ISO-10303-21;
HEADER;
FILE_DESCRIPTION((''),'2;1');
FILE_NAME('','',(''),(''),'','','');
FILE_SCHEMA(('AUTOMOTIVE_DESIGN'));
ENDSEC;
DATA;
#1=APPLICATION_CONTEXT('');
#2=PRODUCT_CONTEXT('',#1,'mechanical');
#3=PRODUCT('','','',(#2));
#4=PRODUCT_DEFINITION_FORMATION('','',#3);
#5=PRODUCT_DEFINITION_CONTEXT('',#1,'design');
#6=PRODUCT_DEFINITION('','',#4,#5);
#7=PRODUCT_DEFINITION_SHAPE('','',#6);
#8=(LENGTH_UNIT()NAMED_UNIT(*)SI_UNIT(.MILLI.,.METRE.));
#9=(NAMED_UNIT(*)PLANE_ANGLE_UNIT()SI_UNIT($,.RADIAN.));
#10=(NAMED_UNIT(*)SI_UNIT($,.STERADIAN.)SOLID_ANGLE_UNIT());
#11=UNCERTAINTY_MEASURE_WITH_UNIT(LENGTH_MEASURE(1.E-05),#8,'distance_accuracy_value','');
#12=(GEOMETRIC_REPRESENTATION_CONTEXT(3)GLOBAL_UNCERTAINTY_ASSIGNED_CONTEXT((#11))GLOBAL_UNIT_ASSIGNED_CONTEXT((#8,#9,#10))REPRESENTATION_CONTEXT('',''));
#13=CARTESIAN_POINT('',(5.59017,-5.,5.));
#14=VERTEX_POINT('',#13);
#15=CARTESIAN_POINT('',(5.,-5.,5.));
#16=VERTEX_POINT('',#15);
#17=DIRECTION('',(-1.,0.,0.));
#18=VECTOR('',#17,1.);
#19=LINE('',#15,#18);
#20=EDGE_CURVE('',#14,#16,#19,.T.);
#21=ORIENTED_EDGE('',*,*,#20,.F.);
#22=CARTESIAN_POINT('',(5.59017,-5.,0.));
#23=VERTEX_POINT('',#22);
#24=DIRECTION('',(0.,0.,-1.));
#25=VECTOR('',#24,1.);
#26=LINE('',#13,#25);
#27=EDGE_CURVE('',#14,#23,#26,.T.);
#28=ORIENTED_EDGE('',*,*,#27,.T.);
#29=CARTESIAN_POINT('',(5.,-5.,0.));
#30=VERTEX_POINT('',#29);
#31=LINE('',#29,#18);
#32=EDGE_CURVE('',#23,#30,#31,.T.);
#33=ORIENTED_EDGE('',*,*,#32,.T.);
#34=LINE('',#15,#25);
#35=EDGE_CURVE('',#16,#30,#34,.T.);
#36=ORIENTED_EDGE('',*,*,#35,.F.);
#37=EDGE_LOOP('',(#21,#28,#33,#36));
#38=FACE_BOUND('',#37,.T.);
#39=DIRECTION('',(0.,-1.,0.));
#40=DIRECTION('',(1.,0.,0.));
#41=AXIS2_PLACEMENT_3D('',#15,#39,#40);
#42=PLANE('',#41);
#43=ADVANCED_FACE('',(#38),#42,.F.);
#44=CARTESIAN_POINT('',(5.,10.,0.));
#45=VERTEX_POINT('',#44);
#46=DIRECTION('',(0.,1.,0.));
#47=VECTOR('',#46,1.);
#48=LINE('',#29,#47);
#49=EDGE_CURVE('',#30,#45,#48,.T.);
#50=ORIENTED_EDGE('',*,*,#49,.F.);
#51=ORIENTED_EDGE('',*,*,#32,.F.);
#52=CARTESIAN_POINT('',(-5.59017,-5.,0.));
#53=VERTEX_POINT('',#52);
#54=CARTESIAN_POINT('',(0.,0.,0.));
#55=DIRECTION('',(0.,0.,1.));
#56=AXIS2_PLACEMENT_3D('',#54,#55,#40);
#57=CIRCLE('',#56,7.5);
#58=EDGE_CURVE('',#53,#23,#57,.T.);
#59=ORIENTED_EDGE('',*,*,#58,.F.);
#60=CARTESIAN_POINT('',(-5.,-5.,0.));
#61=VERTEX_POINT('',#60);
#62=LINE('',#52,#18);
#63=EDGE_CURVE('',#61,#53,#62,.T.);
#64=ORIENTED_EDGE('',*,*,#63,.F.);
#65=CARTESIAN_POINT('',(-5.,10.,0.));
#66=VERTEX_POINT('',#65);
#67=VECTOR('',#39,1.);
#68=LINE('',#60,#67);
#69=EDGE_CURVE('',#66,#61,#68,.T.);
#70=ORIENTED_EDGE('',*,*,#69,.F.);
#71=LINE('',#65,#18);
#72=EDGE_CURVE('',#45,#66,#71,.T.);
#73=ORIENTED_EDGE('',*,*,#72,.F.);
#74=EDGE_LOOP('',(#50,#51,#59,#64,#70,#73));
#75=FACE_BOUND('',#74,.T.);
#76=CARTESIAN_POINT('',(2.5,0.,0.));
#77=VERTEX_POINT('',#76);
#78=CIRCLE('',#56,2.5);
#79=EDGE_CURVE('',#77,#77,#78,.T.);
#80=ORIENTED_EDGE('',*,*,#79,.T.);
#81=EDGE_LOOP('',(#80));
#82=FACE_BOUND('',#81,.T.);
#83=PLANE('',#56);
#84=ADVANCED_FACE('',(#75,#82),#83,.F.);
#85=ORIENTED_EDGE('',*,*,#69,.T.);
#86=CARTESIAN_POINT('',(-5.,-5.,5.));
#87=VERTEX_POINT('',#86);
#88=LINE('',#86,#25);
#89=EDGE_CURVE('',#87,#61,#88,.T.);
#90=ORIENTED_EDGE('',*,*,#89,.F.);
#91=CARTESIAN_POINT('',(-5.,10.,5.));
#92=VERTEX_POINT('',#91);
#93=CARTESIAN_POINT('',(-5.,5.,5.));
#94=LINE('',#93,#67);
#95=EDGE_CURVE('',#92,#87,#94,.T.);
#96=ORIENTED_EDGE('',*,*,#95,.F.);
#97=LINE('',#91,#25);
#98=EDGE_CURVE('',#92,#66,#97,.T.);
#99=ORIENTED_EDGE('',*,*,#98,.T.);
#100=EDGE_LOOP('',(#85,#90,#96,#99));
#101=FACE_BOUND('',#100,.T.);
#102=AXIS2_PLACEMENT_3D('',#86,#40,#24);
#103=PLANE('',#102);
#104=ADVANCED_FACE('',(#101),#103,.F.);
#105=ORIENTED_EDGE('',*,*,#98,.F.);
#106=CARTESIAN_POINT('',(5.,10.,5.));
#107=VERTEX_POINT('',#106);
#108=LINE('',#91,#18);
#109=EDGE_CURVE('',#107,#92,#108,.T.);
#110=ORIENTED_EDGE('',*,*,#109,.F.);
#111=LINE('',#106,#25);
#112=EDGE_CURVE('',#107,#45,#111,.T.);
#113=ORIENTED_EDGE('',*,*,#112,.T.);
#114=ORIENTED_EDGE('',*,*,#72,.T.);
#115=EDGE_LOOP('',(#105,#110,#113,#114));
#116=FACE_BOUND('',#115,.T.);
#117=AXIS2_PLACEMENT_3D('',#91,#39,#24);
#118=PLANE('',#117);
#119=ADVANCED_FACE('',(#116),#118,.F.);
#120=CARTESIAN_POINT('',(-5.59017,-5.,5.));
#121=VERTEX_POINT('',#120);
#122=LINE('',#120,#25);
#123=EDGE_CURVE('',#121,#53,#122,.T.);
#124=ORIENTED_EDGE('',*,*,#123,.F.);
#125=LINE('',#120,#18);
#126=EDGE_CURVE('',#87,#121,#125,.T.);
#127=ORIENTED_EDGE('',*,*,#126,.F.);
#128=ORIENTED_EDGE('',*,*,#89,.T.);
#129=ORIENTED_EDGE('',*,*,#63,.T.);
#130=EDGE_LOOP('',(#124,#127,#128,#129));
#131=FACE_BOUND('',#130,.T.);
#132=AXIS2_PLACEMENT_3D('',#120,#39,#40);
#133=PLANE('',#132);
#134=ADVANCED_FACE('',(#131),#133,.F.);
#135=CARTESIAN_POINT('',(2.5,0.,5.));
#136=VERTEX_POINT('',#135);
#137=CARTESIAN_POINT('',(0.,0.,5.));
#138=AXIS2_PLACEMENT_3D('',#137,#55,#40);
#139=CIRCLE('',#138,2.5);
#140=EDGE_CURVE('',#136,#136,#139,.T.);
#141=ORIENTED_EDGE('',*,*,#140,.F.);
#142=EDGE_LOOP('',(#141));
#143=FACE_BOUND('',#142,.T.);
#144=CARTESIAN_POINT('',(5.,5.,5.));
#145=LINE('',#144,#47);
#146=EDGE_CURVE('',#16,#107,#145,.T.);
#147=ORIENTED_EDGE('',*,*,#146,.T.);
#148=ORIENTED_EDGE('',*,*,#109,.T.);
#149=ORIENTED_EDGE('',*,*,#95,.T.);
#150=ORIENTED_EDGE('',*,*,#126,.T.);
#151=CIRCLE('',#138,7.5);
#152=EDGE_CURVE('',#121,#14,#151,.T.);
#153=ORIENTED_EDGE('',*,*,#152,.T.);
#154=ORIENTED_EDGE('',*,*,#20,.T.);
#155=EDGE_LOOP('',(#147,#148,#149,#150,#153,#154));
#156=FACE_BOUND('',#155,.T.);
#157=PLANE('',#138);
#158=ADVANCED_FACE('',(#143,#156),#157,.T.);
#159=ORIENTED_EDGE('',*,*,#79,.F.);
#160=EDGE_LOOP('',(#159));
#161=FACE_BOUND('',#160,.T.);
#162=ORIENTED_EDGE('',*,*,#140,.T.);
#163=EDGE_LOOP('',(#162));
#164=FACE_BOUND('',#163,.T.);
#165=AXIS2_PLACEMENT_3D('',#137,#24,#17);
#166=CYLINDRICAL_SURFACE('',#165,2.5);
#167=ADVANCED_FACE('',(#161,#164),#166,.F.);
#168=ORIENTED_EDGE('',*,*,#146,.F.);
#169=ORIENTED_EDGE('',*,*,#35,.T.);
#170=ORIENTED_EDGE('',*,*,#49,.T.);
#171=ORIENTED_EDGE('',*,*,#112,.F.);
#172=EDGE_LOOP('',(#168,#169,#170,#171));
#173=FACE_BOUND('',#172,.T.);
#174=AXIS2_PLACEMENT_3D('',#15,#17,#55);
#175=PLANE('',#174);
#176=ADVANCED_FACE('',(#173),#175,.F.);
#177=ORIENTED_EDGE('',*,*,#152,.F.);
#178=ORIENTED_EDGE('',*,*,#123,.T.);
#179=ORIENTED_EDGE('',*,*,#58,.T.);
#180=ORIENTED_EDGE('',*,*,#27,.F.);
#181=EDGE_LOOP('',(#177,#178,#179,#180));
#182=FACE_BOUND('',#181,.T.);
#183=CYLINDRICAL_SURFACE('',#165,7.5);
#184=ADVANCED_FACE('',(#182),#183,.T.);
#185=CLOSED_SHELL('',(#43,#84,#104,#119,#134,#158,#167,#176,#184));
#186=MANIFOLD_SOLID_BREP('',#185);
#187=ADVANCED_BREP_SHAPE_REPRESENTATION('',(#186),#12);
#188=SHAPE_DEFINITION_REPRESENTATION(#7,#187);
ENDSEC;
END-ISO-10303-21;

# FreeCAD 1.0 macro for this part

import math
import FreeCAD as App
import Part
import Sketcher

V = App.Vector
Q = App.Units.Quantity

doc = App.newDocument("Part")
body = doc.addObject("PartDesign::Body", "Body")

sketch1 = body.newObject("Sketcher::SketchObject", "Sketch")
sketch1.AttachmentSupport = (doc.getObject("XY_Plane"), [""])
sketch1.MapMode = "FlatFace"
sketch1.addGeometry([
    Part.LineSegment(V(5.6, -5, 0), V(5, -5, 0)),
    Part.LineSegment(V(5, -5, 0), V(5, 10, 0)),
    Part.LineSegment(V(5, 10, 0), V(-5, 10, 0)),
    Part.LineSegment(V(-5, 10, 0), V(-5, -5, 0)),
    Part.LineSegment(V(-5, -5, 0), V(-5.6, -5, 0)),
    Part.ArcOfCircle(Part.Circle(V(0, 0, 0), V(0, 0, 1), 7.5), math.radians(-138), math.radians(-42)),
    Part.Circle(V(0, 0, 0), V(0, 0, 1), 2.5),
], False)
sketch1.addConstraint([
    Sketcher.Constraint("Coincident", 0, 2, 1, 1),
    Sketcher.Constraint("Coincident", 1, 2, 2, 1),
    Sketcher.Constraint("Coincident", 2, 2, 3, 1),
    Sketcher.Constraint("Coincident", 3, 2, 4, 1),
    Sketcher.Constraint("Coincident", 4, 2, 5, 1),
    Sketcher.Constraint("Coincident", 5, 2, 0, 1),
    Sketcher.Constraint("Horizontal", 0),
    Sketcher.Constraint("Vertical", 1),
    Sketcher.Constraint("Horizontal", 2),
    Sketcher.Constraint("Vertical", 3),
    Sketcher.Constraint("Horizontal", 4),
    Sketcher.Constraint("Coincident", 5, 3, -1, 1),
    Sketcher.Constraint("Coincident", 6, 3, -1, 1),
    Sketcher.Constraint("Symmetric", 0, 2, 3, 2, -2),
    Sketcher.Constraint("Diameter", 6, Q("5 mm")),
    Sketcher.Constraint("Radius", 5, Q("7.5 mm")),
    Sketcher.Constraint("DistanceX", 2, 2, 2, 1, Q("10 mm")),
    Sketcher.Constraint("DistanceY", 1, 1, 1, 2, Q("15 mm")),
    Sketcher.Constraint("DistanceY", 0, 2, -1, 1, Q("5 mm")),
])
pad1 = body.newObject("PartDesign::Pad", "Pad")
pad1.Profile = sketch1
pad1.Length = 5

doc.recompute()
